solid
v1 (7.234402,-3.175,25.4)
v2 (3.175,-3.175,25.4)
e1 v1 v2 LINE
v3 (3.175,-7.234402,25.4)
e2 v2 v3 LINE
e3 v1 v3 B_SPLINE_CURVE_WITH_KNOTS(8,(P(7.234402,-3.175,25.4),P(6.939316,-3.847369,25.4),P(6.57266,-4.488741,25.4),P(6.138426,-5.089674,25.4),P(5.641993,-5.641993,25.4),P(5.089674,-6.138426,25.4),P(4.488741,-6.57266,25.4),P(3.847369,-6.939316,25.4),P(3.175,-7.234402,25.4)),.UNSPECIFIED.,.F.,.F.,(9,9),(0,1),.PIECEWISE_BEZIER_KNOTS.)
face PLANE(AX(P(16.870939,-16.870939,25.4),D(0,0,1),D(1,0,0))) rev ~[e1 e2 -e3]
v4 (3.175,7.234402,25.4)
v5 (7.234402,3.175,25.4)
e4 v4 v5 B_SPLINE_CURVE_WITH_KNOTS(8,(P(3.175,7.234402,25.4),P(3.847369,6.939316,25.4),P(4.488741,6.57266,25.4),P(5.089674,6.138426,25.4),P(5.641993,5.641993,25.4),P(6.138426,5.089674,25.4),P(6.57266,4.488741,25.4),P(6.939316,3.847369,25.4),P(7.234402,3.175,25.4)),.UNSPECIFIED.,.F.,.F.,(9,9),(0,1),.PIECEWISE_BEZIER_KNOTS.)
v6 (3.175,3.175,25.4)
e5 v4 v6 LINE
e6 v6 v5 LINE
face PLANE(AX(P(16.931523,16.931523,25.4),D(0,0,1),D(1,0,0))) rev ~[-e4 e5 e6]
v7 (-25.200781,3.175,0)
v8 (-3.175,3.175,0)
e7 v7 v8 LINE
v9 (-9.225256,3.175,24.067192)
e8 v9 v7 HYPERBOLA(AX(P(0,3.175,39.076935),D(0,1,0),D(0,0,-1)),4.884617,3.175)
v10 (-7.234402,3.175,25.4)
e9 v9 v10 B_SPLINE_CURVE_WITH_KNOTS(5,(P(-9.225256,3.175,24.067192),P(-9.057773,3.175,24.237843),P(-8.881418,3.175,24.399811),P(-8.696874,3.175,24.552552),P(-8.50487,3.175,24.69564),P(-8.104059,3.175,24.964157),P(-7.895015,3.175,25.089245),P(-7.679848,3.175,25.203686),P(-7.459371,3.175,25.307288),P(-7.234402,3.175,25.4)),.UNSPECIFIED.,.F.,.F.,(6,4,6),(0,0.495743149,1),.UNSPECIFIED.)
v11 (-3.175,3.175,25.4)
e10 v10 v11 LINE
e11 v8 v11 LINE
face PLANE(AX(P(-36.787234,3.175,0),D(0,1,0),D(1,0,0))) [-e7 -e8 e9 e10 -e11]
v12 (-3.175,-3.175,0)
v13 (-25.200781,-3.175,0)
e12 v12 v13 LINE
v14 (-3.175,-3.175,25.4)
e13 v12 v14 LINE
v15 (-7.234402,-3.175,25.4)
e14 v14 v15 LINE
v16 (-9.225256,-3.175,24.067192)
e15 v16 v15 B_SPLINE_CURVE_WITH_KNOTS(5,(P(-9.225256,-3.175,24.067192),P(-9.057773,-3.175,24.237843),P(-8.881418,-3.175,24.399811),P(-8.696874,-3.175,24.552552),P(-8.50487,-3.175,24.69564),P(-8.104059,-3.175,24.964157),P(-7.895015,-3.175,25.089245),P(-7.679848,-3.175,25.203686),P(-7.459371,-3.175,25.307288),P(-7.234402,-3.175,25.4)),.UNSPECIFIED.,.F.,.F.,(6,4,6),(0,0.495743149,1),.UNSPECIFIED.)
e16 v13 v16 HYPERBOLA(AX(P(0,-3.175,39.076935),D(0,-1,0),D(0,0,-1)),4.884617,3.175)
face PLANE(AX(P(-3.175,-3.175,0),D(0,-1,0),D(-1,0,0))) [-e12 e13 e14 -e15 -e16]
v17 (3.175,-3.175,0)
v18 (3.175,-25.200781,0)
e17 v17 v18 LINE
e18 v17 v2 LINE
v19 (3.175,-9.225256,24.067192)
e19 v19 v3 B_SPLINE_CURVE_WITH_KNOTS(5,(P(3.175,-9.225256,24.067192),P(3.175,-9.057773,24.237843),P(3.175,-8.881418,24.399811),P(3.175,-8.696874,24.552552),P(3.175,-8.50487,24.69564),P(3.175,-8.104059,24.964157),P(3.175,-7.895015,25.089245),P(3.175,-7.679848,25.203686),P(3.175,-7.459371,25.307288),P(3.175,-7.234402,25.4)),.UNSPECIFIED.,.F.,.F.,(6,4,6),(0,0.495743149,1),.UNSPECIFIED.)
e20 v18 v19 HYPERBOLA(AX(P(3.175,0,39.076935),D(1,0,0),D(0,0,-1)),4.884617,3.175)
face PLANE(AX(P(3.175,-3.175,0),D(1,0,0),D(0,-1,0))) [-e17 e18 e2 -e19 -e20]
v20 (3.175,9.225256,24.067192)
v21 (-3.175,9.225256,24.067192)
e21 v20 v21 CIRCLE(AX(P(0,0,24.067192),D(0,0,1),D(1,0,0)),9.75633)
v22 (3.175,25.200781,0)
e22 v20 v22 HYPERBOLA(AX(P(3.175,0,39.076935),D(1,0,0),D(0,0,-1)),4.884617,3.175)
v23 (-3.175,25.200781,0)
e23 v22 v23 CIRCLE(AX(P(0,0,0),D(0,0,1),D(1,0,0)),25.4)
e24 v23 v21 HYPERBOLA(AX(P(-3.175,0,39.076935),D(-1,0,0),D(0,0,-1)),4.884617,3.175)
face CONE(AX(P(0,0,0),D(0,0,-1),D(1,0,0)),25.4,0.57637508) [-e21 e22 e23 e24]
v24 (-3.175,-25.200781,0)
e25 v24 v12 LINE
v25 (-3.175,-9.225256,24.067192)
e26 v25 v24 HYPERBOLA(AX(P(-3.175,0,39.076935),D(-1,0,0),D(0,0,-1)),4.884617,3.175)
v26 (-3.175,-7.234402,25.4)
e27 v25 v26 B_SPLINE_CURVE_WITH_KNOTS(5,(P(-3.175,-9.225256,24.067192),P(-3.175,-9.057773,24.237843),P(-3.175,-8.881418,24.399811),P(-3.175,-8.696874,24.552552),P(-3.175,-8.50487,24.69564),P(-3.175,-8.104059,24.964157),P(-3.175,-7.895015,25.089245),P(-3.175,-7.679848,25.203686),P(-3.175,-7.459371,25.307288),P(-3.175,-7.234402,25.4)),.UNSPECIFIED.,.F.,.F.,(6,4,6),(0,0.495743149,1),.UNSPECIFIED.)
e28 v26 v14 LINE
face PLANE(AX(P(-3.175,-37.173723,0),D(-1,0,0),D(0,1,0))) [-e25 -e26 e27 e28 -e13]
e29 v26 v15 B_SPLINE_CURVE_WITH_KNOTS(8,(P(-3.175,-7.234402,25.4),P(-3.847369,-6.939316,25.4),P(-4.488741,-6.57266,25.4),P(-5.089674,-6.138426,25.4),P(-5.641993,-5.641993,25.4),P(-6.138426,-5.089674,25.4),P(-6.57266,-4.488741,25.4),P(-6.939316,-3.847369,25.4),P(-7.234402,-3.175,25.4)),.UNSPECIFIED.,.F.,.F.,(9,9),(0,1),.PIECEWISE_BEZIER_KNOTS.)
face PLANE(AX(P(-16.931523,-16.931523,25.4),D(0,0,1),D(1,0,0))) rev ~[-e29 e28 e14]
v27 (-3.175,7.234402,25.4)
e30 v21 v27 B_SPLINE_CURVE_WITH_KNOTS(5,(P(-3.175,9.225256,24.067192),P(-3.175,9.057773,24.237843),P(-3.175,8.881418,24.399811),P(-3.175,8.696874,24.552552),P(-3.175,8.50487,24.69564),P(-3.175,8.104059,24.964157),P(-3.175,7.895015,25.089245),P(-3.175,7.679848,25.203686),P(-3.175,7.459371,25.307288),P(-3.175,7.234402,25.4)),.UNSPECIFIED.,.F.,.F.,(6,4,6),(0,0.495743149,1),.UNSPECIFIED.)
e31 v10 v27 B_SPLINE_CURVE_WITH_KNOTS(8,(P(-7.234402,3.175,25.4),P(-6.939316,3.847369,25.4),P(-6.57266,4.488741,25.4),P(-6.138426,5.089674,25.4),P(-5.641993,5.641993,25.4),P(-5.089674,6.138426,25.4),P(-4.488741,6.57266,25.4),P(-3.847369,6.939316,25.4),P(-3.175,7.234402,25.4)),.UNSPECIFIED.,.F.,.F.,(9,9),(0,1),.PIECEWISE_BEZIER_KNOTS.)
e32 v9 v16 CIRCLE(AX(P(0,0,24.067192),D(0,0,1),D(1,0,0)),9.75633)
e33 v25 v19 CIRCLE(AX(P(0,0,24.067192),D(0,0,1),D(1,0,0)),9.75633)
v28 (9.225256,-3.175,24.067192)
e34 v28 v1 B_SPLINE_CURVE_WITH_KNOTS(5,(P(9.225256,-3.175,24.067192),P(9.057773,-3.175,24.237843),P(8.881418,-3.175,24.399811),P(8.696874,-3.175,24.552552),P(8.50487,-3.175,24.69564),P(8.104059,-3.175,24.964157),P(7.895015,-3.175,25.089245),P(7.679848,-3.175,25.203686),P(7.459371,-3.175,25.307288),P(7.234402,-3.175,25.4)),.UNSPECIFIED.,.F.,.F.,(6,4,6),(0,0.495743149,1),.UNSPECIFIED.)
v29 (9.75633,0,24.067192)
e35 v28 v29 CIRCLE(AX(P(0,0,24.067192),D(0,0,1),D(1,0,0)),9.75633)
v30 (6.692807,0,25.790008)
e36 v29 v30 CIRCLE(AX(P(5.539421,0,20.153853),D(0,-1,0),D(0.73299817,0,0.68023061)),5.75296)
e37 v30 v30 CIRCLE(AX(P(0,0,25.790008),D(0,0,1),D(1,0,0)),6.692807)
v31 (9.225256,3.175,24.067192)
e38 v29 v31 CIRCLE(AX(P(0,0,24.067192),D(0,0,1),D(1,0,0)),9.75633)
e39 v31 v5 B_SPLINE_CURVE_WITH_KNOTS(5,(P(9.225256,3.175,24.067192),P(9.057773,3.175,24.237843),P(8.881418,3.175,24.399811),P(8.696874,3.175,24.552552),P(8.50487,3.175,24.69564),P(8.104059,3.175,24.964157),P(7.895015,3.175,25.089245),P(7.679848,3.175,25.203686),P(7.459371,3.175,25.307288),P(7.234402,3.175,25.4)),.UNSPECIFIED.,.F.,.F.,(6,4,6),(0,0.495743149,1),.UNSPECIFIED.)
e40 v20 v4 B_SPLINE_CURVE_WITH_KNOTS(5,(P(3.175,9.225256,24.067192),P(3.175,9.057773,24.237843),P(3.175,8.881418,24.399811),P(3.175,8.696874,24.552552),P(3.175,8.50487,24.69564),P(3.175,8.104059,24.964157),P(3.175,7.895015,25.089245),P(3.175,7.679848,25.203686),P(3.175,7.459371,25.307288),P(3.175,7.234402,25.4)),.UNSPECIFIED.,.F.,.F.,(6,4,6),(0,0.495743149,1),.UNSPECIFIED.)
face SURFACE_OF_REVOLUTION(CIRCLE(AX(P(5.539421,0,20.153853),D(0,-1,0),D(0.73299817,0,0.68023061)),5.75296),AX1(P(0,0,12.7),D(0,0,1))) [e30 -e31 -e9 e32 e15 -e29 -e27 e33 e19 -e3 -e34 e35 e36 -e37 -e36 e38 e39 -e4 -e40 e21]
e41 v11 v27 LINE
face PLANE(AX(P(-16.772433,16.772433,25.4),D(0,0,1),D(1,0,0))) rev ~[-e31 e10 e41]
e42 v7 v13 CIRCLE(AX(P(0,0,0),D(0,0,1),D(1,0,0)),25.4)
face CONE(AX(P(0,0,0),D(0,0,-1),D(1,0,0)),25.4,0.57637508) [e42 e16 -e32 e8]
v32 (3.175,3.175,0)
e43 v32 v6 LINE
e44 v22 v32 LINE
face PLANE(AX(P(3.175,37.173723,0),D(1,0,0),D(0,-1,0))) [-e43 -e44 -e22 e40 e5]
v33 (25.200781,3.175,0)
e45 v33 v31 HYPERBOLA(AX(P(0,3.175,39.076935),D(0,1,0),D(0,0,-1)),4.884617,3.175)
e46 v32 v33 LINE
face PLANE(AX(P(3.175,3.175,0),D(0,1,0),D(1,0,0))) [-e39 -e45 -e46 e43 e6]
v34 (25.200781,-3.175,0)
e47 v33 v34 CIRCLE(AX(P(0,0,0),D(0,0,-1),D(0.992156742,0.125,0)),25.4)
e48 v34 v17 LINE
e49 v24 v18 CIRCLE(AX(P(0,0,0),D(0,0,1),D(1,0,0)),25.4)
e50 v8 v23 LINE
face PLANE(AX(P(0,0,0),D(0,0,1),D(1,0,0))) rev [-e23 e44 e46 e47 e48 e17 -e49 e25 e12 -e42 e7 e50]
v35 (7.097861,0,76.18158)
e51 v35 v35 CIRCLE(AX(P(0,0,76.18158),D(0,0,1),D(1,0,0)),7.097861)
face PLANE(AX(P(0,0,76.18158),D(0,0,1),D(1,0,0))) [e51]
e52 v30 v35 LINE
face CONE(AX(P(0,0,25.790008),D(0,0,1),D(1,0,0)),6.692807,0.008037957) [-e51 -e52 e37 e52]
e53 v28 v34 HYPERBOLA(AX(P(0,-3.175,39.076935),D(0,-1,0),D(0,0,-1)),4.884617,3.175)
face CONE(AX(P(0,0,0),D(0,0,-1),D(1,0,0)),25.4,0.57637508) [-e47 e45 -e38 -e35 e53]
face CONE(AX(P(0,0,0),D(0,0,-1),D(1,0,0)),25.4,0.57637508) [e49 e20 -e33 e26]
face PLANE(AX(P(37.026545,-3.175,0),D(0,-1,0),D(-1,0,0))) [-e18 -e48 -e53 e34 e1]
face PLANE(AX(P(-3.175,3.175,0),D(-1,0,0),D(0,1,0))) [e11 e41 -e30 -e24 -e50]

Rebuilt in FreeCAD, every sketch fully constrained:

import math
import FreeCAD as App
import Part
import Sketcher

V = App.Vector
Q = App.Units.Quantity

doc = App.newDocument("Part")
body = doc.addObject("PartDesign::Body", "Body")

# Sketch on XZ plane
sketch1 = doc.addObject("Sketcher::SketchObject", "Sketch")
body.addObject(sketch1)
sketch1.AttachmentSupport = (doc.XZ_Plane, [""])
sketch1.MapMode = "FlatFace"
sketch1.addGeometry(Part.LineSegment(V(0, 0, 0), V(25.4, 0, 0)), False)
sketch1.addGeometry(Part.LineSegment(V(25.4, 0, 0), V(9.75633, 24.067192, 0)), False)
sketch1.addGeometry(Part.ArcOfCircle(Part.Circle(V(5.539421, 20.153853, 0), V(0, 0, 1), 5.75296), math.radians(42.861666), math.radians(78.434639)), False)
sketch1.addGeometry(Part.LineSegment(V(6.692807, 25.790008, 0), V(7.097861, 76.18158, 0)), False)
sketch1.addGeometry(Part.LineSegment(V(7.097861, 76.18158, 0), V(0, 76.18158, 0)), False)
sketch1.addGeometry(Part.LineSegment(V(0, 76.18158, 0), V(0, 0, 0)), False)
sketch1.addConstraint(Sketcher.Constraint("Coincident", 0, 2, 1, 1))
sketch1.addConstraint(Sketcher.Constraint("Coincident", 1, 2, 2, 1))
sketch1.addConstraint(Sketcher.Constraint("Coincident", 2, 2, 3, 1))
sketch1.addConstraint(Sketcher.Constraint("Coincident", 3, 2, 4, 1))
sketch1.addConstraint(Sketcher.Constraint("Coincident", 4, 2, 5, 1))
sketch1.addConstraint(Sketcher.Constraint("Coincident", 5, 2, 0, 1))
sketch1.addConstraint(Sketcher.Constraint("Horizontal", 0))
sketch1.addConstraint(Sketcher.Constraint("Horizontal", 4))
sketch1.addConstraint(Sketcher.Constraint("Vertical", 5))
sketch1.addConstraint(Sketcher.Constraint("Coincident", 5, 2, -1, 1))
sketch1.addConstraint(Sketcher.Constraint("DistanceX", 0, 1, 0, 2, Q("1 in")))
sketch1.addConstraint(Sketcher.Constraint("Radius", 2, Q("5.75296 mm")))
sketch1.addConstraint(Sketcher.Constraint("Distance", 1, Q("28.704601 mm")))
sketch1.addConstraint(Sketcher.Constraint("Distance", 3, Q("50.3932 mm")))
sketch1.addConstraint(Sketcher.Constraint("DistanceX", 4, 2, 4, 1, Q("7.097861 mm")))
sketch1.addConstraint(Sketcher.Constraint("DistanceY", 5, 2, 5, 1, Q("76.18158 mm")))
sketch1.addConstraint(Sketcher.Constraint("DistanceX", -1, 1, 2, 3, Q("5.539421 mm")))
sketch1.addConstraint(Sketcher.Constraint("DistanceX", -1, 1, 1, 2, Q("9.75633 mm")))
revolution = doc.addObject("PartDesign::Revolution", "Revolution")
body.addObject(revolution)
revolution.Profile = sketch1
revolution.ReferenceAxis = (sketch1, ["V_Axis"])
revolution.Angle = 360

# Sketch on XY plane
sketch2 = doc.addObject("Sketcher::SketchObject", "Sketch001")
body.addObject(sketch2)
sketch2.AttachmentSupport = (doc.XY_Plane, [""])
sketch2.MapMode = "FlatFace"
sketch2.addGeometry(Part.LineSegment(V(3.175, -3.175, 0), V(3.175, -37.026545, 0)), False)
sketch2.addGeometry(Part.ArcOfCircle(Part.Circle(V(0, 0, 0), V(0, 0, 1), 37.162423), math.radians(-85.098916), math.radians(-4.901084)), False)
sketch2.addGeometry(Part.LineSegment(V(37.026545, -3.175, 0), V(3.175, -3.175, 0)), False)
sketch2.addGeometry(Part.LineSegment(V(3.175, 3.175, 0), V(37.173723, 3.175, 0)), False)
sketch2.addGeometry(Part.ArcOfCircle(Part.Circle(V(0.000002, 0.000002, 0), V(0, 0, 1), 37.309063), math.radians(4.881771), math.radians(85.118229)), False)
sketch2.addGeometry(Part.LineSegment(V(3.175, 37.173723, 0), V(3.175, 3.175, 0)), False)
sketch2.addGeometry(Part.LineSegment(V(-3.175, 3.175, 0), V(-3.175, 36.787234, 0)), False)
sketch2.addGeometry(Part.ArcOfCircle(Part.Circle(V(0.000002, -0.000002, 0), V(0, 0, 1), 36.923994), math.radians(94.932812), math.radians(175.067188)), False)
sketch2.addGeometry(Part.LineSegment(V(-36.787234, 3.175, 0), V(-3.175, 3.175, 0)), False)
sketch2.addGeometry(Part.LineSegment(V(-3.175, -3.175, 0), V(-37.173723, -3.175, 0)), False)
sketch2.addGeometry(Part.ArcOfCircle(Part.Circle(V(-0.000002, -0.000002, 0), V(0, 0, 1), 37.309063), math.radians(-175.118229), math.radians(-94.881771)), False)
sketch2.addGeometry(Part.LineSegment(V(-3.175, -37.173723, 0), V(-3.175, -3.175, 0)), False)
sketch2.addConstraint(Sketcher.Constraint("Coincident", 0, 2, 1, 1))
sketch2.addConstraint(Sketcher.Constraint("Coincident", 1, 2, 2, 1))
sketch2.addConstraint(Sketcher.Constraint("Coincident", 2, 2, 0, 1))
sketch2.addConstraint(Sketcher.Constraint("Coincident", 3, 2, 4, 1))
sketch2.addConstraint(Sketcher.Constraint("Coincident", 4, 2, 5, 1))
sketch2.addConstraint(Sketcher.Constraint("Coincident", 5, 2, 3, 1))
sketch2.addConstraint(Sketcher.Constraint("Coincident", 6, 2, 7, 1))
sketch2.addConstraint(Sketcher.Constraint("Coincident", 7, 2, 8, 1))
sketch2.addConstraint(Sketcher.Constraint("Coincident", 8, 2, 6, 1))
sketch2.addConstraint(Sketcher.Constraint("Coincident", 9, 2, 10, 1))
sketch2.addConstraint(Sketcher.Constraint("Coincident", 10, 2, 11, 1))
sketch2.addConstraint(Sketcher.Constraint("Coincident", 11, 2, 9, 1))
sketch2.addConstraint(Sketcher.Constraint("Vertical", 0))
sketch2.addConstraint(Sketcher.Constraint("Horizontal", 2))
sketch2.addConstraint(Sketcher.Constraint("Horizontal", 3))
sketch2.addConstraint(Sketcher.Constraint("Vertical", 5))
sketch2.addConstraint(Sketcher.Constraint("Vertical", 6))
sketch2.addConstraint(Sketcher.Constraint("Horizontal", 8))
sketch2.addConstraint(Sketcher.Constraint("Horizontal", 9))
sketch2.addConstraint(Sketcher.Constraint("Vertical", 11))
sketch2.addConstraint(Sketcher.Constraint("Coincident", 1, 3, -1, 1))
sketch2.addConstraint(Sketcher.Constraint("Coincident", 4, 3, -1, 1))
sketch2.addConstraint(Sketcher.Constraint("Coincident", 7, 3, -1, 1))
sketch2.addConstraint(Sketcher.Constraint("Coincident", 10, 3, -1, 1))
sketch2.addConstraint(Sketcher.Constraint("Equal", 4, 10))
sketch2.addConstraint(Sketcher.Constraint("Symmetric", 2, 2, 8, 2, -1, 1))
sketch2.addConstraint(Sketcher.Constraint("Symmetric", 5, 2, 11, 2, -1, 1))
sketch2.addConstraint(Sketcher.Constraint("Symmetric", 5, 2, 8, 2, -2))
sketch2.addConstraint(Sketcher.Constraint("Equal", 2, 0))
sketch2.addConstraint(Sketcher.Constraint("DistanceY", 1, 2, 3, 2, Q("0.25 in")))
sketch2.addConstraint(Sketcher.Constraint("Radius", 1, Q("37.162423 mm")))
sketch2.addConstraint(Sketcher.Constraint("Radius", 4, Q("37.309063 mm")))
sketch2.addConstraint(Sketcher.Constraint("Radius", 7, Q("36.923994 mm")))
pocket1 = doc.addObject("PartDesign::Pocket", "Pocket")
body.addObject(pocket1)
pocket1.Profile = sketch2
pocket1.Length = Q("1 in")
pocket1.Reversed = True

doc.recompute()
